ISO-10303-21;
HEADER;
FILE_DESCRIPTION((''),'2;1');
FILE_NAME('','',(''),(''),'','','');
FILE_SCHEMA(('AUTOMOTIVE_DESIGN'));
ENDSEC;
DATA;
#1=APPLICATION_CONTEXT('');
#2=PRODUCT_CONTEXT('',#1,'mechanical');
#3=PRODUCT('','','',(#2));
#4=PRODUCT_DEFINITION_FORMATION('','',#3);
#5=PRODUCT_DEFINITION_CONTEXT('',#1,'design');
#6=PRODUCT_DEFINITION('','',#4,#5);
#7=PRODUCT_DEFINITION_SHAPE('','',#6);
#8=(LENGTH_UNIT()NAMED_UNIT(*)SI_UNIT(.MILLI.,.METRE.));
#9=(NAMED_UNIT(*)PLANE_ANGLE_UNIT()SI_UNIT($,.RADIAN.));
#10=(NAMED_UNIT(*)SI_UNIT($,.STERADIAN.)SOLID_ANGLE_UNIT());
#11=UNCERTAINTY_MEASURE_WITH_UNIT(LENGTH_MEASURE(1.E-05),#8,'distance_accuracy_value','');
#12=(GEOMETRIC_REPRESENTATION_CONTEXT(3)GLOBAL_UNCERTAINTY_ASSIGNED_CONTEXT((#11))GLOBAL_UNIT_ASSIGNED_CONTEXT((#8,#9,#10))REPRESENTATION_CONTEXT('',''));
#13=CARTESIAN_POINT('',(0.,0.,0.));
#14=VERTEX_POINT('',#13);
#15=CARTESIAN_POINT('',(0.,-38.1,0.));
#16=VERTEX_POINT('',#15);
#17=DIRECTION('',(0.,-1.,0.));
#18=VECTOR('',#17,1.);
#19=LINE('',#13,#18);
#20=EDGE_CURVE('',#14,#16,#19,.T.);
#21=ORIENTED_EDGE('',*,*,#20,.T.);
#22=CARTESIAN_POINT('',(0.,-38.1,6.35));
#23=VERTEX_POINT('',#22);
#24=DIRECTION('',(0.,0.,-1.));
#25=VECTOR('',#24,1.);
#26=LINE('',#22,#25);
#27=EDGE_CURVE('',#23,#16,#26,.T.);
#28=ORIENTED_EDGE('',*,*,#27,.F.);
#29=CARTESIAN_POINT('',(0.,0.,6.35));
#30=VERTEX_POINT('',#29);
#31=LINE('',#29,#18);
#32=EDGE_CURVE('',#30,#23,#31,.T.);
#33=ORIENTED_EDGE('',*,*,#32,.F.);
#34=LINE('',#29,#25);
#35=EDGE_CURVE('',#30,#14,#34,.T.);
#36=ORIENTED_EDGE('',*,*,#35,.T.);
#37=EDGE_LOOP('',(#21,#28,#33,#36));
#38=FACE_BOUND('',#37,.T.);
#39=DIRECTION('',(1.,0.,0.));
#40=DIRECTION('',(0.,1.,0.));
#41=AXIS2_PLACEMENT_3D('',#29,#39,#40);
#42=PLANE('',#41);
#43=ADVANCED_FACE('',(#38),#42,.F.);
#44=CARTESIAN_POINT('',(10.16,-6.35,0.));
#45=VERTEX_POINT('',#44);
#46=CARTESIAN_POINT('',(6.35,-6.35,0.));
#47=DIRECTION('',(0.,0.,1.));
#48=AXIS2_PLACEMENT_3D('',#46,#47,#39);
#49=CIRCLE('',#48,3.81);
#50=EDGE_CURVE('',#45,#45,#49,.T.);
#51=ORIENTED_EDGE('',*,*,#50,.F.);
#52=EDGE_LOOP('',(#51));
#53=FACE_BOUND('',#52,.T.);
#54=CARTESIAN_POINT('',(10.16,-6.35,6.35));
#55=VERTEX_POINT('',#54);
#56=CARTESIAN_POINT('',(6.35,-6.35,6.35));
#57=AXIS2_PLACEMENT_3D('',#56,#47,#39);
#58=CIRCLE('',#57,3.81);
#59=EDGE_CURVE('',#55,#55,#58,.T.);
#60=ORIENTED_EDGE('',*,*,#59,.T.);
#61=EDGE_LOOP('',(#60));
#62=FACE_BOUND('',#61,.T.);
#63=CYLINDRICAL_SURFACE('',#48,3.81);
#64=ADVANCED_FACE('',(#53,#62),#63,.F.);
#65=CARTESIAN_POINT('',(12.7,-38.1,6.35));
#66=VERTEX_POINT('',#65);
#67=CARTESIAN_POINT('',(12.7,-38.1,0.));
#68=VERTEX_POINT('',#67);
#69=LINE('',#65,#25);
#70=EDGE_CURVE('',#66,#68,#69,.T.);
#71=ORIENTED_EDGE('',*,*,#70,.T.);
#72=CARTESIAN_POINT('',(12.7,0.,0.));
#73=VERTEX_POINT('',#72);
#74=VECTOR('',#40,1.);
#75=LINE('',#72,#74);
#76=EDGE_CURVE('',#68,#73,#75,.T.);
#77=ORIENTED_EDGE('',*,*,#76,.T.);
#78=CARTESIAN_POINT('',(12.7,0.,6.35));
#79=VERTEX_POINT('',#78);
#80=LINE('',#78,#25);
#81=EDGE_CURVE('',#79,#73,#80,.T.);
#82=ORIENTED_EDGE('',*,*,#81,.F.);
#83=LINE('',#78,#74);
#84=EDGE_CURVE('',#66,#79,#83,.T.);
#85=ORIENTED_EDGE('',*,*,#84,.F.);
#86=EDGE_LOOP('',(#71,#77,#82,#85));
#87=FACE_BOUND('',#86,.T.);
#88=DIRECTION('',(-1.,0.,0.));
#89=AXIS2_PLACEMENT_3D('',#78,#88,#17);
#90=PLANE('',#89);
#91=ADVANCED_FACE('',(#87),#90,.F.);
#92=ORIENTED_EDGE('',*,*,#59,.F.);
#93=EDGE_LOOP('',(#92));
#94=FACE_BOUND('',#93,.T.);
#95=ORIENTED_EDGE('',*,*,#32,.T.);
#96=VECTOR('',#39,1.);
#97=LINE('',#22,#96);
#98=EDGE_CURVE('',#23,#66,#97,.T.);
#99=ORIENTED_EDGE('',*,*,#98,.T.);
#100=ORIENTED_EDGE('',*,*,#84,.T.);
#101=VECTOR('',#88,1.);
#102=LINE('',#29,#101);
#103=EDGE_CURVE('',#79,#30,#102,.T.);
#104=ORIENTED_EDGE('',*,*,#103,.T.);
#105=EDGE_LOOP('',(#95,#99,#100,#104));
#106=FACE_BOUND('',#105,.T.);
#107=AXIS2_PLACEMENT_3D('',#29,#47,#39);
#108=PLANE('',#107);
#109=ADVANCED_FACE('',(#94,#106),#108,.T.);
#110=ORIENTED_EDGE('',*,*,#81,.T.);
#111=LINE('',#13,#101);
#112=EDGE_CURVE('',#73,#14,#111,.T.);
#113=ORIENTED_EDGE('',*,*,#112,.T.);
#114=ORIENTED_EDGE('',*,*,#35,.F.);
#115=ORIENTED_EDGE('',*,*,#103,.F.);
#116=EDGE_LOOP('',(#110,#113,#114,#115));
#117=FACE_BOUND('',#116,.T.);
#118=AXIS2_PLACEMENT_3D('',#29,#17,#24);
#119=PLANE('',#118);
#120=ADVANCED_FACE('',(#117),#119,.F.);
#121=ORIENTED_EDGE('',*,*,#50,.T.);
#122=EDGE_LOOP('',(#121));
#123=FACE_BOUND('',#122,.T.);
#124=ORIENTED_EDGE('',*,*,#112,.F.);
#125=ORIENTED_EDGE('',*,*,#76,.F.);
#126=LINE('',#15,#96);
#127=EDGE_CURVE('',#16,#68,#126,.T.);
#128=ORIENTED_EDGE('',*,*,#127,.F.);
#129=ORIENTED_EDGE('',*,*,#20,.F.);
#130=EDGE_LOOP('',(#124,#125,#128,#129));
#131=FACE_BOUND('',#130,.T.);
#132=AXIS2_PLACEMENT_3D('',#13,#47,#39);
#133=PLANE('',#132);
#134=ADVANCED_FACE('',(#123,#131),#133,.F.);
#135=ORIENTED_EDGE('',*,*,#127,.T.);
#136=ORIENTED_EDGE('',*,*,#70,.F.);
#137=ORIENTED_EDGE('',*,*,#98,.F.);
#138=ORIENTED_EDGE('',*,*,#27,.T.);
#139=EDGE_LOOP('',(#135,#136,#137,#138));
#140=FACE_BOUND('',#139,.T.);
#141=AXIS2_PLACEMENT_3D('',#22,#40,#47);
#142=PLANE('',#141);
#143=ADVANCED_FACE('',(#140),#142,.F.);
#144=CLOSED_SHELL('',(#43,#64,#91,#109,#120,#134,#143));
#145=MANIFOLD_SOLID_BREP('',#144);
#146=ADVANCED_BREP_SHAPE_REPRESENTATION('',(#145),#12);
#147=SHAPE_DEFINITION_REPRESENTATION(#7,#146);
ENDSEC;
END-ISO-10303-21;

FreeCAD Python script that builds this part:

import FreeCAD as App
import Part
import Sketcher
Q = App.Units.Quantity

doc = App.newDocument("Part")
body = doc.addObject("PartDesign::Body", "Body")

# Sketch on XY plane
sketch1 = body.newObject("Sketcher::SketchObject", "Sketch")
sketch1.AttachmentSupport = (doc.getObject("XY_Plane"), [""])
sketch1.MapMode = "FlatFace"
sketch1.addGeometry([
    Part.LineSegment(App.Vector(0, 0, 0), App.Vector(0, -38, 0)),
    Part.LineSegment(App.Vector(0, -38, 0), App.Vector(13, -38, 0)),
    Part.LineSegment(App.Vector(13, -38, 0), App.Vector(13, 0, 0)),
    Part.LineSegment(App.Vector(13, 0, 0), App.Vector(0, 0, 0)),
], False)
sketch1.addConstraint([
    Sketcher.Constraint("Coincident", 0, 2, 1, 1),
    Sketcher.Constraint("Coincident", 1, 2, 2, 1),
    Sketcher.Constraint("Coincident", 2, 2, 3, 1),
    Sketcher.Constraint("Coincident", 3, 2, 0, 1),
    Sketcher.Constraint("Vertical", 0),
    Sketcher.Constraint("Horizontal", 1),
    Sketcher.Constraint("Vertical", 2),
    Sketcher.Constraint("Horizontal", 3),
    Sketcher.Constraint("Coincident", 3, 2, -1, 1),
    Sketcher.Constraint("DistanceX", 1, 1, 1, 2, Q("0.5 in")),
    Sketcher.Constraint("DistanceY", 0, 2, 0, 1, Q("1.5 in")),
])
pad1 = body.newObject("PartDesign::Pad", "Pad")
pad1.Profile = sketch1
pad1.Length = Q("0.25 in")

# Sketch on XY plane
sketch2 = body.newObject("Sketcher::SketchObject", "Sketch001")
sketch2.AttachmentSupport = (doc.getObject("XY_Plane"), [""])
sketch2.MapMode = "FlatFace"
sketch2.AttachmentOffset = App.Placement(App.Vector(0, 0, 0.25 * 25.4), App.Rotation())
sketch2.addGeometry(Part.Circle(App.Vector(6.3, -6.3, 0), App.Vector(0, 0, 1), 3.8), False)
sketch2.addConstraint([
    Sketcher.Constraint("Diameter", 0, Q("0.3 in")),
    Sketcher.Constraint("DistanceX", -1, 1, 0, 3, Q("0.25 in")),
    Sketcher.Constraint("DistanceY", 0, 3, -1, 1, Q("0.25 in")),
])
pocket1 = body.newObject("PartDesign::Pocket", "Pocket")
pocket1.Profile = sketch2
pocket1.Type = "ThroughAll"
pocket1.Midplane = True

doc.recompute()
